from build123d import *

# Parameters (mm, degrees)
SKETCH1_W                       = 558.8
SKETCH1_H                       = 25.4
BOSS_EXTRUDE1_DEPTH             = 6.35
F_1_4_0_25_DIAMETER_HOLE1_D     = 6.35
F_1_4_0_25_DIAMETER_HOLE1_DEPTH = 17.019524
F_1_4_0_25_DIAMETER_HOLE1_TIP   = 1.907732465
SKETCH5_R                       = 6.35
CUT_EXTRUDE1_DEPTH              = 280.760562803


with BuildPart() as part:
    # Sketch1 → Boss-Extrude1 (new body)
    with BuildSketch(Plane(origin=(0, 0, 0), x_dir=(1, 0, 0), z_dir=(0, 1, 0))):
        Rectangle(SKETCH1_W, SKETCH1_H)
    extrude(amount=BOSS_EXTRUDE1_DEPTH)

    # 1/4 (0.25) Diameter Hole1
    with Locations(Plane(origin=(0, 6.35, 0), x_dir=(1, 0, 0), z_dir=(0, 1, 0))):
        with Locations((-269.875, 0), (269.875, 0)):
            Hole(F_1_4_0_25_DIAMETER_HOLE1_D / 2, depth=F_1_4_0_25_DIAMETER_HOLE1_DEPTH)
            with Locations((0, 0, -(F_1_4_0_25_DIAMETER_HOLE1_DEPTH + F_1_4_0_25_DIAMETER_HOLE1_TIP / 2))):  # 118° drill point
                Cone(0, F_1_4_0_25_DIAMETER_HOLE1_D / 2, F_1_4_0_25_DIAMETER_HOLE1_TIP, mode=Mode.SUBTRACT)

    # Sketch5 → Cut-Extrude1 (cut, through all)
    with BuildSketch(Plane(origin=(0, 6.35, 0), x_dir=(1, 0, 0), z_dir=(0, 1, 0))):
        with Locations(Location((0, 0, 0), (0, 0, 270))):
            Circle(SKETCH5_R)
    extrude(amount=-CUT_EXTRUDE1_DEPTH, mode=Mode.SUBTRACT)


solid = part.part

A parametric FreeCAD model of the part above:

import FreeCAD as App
import Part
import Sketcher
Q = App.Units.Quantity

doc = App.newDocument("Part")
body = doc.addObject("PartDesign::Body", "Body")

# Sketch on XZ plane
sketch1 = body.newObject("Sketcher::SketchObject", "Sketch")
sketch1.AttachmentSupport = (doc.getObject("XZ_Plane"), [""])
sketch1.MapMode = "FlatFace"
sketch1.addGeometry(Part.LineSegment(App.Vector(-279, -13, 0), App.Vector(-279, 13, 0)), False)
sketch1.addGeometry(Part.LineSegment(App.Vector(-279, 13, 0), App.Vector(279, 13, 0)), False)
sketch1.addGeometry(Part.LineSegment(App.Vector(279, 13, 0), App.Vector(279, -13, 0)), False)
sketch1.addGeometry(Part.LineSegment(App.Vector(279, -13, 0), App.Vector(-279, -13, 0)), False)
sketch1.addConstraint(Sketcher.Constraint("Coincident", 0, 2, 1, 1))
sketch1.addConstraint(Sketcher.Constraint("Coincident", 1, 2, 2, 1))
sketch1.addConstraint(Sketcher.Constraint("Coincident", 2, 2, 3, 1))
sketch1.addConstraint(Sketcher.Constraint("Coincident", 3, 2, 0, 1))
sketch1.addConstraint(Sketcher.Constraint("Vertical", 0))
sketch1.addConstraint(Sketcher.Constraint("Horizontal", 1))
sketch1.addConstraint(Sketcher.Constraint("Vertical", 2))
sketch1.addConstraint(Sketcher.Constraint("Horizontal", 3))
sketch1.addConstraint(Sketcher.Constraint("Symmetric", 0, 2, 2, 2, -1, 1))
sketch1.addConstraint(Sketcher.Constraint("DistanceX", 1, 1, 1, 2, Q("22 in")))
sketch1.addConstraint(Sketcher.Constraint("DistanceY", 0, 1, 0, 2, Q("1 in")))
pad1 = body.newObject("PartDesign::Pad", "Pad")
pad1.Profile = sketch1
pad1.Length = Q("0.25 in")
pad1.Reversed = True

# Sketch on XZ plane
sketch2 = body.newObject("Sketcher::SketchObject", "Sketch001")
sketch2.AttachmentSupport = (doc.getObject("XZ_Plane"), [""])
sketch2.MapMode = "FlatFace"
sketch2.AttachmentOffset = App.Placement(App.Vector(0, 0, -0.25 * 25.4), App.Rotation())
sketch2.addGeometry(Part.Circle(App.Vector(-269.9, 0, 0), App.Vector(0, 0, 1), 3.2), False)
sketch2.addGeometry(Part.Circle(App.Vector(269.9, 0, 0), App.Vector(0, 0, 1), 3.2), False)
sketch2.addConstraint(Sketcher.Constraint("Equal", 0, 1))
sketch2.addConstraint(Sketcher.Constraint("Symmetric", 0, 3, 1, 3, -1, 1))
sketch2.addConstraint(Sketcher.Constraint("PointOnObject", 0, 3, -1))
sketch2.addConstraint(Sketcher.Constraint("Diameter", 0, Q("0.25 in")))
sketch2.addConstraint(Sketcher.Constraint("DistanceX", 0, 3, 1, 3, Q("21.25 in")))
doc.recompute()
hole = body.newObject("PartDesign::Hole", "Hole")
hole.Profile = sketch2
hole.ThreadType = "None"
hole.Diameter = Q("0.25 in")
hole.DepthType = "Dimension"
hole.Depth = 17.019524
hole.DrillPoint = "Angled"
hole.DrillPointAngle = 118
hole.Reversed = True

# Sketch on XZ plane
sketch3 = body.newObject("Sketcher::SketchObject", "Sketch002")
sketch3.AttachmentSupport = (doc.getObject("XZ_Plane"), [""])
sketch3.MapMode = "FlatFace"
sketch3.AttachmentOffset = App.Placement(App.Vector(0, 0, -0.25 * 25.4), App.Rotation())
sketch3.addGeometry(Part.Circle(App.Vector(0, 0, 0), App.Vector(0, 0, 1), 6), False)
sketch3.addConstraint(Sketcher.Constraint("Coincident", 0, 3, -1, 1))
sketch3.addConstraint(Sketcher.Constraint("Diameter", 0, Q("0.5 in")))
pocket1 = body.newObject("PartDesign::Pocket", "Pocket")
pocket1.Profile = sketch3
pocket1.Type = "ThroughAll"
pocket1.Reversed = True

doc.recompute()
